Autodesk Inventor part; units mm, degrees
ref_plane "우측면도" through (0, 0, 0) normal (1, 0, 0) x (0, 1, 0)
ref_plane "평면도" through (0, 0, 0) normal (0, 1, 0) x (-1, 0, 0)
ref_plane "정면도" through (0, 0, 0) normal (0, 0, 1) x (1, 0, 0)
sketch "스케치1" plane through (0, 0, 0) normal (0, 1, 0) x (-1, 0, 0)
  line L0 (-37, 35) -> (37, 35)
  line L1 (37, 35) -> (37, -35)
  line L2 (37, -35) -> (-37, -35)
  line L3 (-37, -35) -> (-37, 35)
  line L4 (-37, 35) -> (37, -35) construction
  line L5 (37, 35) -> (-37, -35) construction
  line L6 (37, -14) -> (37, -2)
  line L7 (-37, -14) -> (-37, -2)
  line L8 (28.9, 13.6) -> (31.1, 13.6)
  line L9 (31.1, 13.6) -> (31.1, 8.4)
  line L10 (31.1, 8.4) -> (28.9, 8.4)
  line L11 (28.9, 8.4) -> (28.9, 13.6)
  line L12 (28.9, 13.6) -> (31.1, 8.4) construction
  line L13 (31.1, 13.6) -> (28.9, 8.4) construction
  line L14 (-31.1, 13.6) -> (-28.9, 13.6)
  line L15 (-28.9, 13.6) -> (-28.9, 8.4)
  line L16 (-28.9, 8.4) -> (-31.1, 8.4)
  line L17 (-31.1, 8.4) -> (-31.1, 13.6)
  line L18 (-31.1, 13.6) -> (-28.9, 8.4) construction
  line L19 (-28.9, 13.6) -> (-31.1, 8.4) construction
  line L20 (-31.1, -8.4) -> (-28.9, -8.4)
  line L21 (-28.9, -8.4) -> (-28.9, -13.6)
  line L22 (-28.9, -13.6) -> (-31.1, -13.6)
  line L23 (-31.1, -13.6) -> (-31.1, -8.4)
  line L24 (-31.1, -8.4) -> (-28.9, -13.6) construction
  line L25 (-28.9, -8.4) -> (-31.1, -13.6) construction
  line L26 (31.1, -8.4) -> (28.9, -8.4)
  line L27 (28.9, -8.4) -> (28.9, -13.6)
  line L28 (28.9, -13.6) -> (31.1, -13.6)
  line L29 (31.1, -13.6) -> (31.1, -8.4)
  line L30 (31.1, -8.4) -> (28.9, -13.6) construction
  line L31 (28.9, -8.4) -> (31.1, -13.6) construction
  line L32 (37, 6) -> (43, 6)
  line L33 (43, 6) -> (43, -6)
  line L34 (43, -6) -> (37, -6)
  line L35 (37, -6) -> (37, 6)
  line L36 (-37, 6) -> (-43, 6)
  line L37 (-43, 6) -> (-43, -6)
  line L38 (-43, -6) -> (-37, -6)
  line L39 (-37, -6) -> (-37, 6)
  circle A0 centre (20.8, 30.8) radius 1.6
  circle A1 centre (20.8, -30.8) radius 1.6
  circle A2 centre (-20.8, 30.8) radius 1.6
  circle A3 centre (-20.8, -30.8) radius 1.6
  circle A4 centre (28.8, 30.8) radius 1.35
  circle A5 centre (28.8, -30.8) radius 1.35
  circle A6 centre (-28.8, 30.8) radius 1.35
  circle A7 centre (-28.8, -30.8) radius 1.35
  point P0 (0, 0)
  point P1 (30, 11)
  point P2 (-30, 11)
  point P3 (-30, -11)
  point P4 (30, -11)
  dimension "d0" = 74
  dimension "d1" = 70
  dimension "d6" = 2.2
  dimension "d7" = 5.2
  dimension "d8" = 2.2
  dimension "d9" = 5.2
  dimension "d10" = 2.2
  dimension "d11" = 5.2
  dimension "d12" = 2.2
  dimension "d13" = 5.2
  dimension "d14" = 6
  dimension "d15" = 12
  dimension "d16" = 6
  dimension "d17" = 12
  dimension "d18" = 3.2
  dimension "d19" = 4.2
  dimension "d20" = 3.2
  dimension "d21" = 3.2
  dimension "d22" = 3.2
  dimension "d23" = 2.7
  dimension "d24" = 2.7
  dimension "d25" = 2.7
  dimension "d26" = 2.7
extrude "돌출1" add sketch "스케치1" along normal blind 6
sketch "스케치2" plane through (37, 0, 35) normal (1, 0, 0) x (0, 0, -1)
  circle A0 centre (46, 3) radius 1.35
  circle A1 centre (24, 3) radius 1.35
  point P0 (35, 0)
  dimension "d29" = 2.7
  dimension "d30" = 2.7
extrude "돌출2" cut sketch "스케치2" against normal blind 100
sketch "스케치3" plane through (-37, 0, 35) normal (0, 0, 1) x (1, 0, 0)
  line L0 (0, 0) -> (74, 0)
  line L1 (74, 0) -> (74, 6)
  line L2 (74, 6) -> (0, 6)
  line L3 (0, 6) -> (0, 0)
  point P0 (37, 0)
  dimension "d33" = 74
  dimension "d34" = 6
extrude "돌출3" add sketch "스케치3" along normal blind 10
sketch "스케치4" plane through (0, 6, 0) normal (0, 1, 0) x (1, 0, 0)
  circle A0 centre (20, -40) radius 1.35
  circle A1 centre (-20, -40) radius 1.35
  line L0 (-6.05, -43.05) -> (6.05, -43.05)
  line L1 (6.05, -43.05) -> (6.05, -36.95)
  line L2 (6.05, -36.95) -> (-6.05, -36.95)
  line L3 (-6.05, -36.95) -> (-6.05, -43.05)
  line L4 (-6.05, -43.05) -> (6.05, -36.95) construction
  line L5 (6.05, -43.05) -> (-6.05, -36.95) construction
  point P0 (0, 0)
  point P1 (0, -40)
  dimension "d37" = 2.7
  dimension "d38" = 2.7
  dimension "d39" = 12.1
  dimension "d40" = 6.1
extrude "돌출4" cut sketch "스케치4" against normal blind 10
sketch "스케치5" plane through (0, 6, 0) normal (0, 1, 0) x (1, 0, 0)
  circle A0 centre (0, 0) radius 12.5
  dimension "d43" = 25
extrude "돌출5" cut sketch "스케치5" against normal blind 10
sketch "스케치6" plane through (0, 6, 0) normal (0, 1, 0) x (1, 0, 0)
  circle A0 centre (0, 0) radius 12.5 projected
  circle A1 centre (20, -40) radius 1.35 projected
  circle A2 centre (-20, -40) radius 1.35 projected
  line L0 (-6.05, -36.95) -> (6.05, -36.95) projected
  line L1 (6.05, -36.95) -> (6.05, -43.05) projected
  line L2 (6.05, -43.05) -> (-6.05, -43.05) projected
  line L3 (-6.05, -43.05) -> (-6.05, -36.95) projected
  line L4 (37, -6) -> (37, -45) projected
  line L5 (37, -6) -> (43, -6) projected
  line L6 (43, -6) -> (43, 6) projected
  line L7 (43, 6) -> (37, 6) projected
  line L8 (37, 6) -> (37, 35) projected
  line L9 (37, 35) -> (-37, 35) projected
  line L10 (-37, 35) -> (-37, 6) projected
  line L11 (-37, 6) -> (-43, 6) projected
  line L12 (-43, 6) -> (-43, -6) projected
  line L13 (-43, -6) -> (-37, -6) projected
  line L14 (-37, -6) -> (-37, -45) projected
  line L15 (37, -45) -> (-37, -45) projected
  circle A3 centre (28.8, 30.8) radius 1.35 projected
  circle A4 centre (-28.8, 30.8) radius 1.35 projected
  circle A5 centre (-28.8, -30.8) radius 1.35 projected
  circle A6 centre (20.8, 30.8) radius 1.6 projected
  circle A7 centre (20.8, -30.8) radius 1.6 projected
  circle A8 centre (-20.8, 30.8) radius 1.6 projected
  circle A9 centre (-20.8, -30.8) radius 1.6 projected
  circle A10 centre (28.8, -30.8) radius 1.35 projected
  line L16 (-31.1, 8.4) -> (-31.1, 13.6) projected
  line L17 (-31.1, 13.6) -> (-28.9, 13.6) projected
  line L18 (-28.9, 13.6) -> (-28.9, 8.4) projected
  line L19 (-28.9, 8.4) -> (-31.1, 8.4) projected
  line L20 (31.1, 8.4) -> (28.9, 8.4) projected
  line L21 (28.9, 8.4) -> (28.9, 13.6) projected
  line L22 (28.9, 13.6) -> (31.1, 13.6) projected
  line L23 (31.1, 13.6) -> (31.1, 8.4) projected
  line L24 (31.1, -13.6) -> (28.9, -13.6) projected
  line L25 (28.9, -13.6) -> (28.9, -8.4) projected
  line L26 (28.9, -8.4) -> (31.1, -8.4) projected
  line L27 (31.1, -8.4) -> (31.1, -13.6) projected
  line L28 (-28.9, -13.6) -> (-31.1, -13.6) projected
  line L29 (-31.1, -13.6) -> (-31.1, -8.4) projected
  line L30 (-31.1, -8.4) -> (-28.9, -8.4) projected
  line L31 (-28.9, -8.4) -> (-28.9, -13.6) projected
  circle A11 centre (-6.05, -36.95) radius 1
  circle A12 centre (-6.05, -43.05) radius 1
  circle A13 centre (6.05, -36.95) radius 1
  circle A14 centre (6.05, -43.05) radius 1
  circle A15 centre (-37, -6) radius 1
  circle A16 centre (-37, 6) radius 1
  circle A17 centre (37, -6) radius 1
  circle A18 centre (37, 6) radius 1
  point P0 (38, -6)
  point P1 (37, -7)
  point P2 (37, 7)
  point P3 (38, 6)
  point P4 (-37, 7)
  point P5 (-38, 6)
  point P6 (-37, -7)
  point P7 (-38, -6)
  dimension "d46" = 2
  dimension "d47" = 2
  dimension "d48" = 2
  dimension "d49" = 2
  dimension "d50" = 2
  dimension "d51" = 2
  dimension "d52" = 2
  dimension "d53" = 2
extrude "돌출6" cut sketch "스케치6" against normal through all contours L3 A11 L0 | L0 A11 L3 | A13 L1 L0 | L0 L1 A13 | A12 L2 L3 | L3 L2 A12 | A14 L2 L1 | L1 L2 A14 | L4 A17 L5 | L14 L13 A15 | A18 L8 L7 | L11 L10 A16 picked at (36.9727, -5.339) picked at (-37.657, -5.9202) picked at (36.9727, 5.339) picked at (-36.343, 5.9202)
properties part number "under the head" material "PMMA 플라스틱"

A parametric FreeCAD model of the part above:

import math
import FreeCAD as App
import Part
import Sketcher
from FreeCAD import Vector
Q = App.Units.Quantity


def add_polygon(sketch, points):
    """Adds a closed chain of lines whose ends are joined by coincident constraints."""
    first, n = sketch.GeometryCount, len(points)
    for a, b in zip(points, points[1:] + points[:1]):
        sketch.addGeometry(Part.LineSegment(App.Vector(*a, 0), App.Vector(*b, 0)), False)
    for i in range(n):
        sketch.addConstraint(Sketcher.Constraint("Coincident", first + i, 2, first + (i + 1) % n, 1))

doc = App.newDocument("Part")
body = doc.addObject("PartDesign::Body", "Body")

# Sketch on XZ plane
sketch1 = doc.addObject("Sketcher::SketchObject", "Sketch")
body.addObject(sketch1)
sketch1.AttachmentSupport = (doc.XZ_Plane, [""])
sketch1.MapMode = "FlatFace"
add_polygon(sketch1, [(-37, 35), (37, 35), (37, 6), (43, 6), (43, -6), (37, -6), (37, -35), (-37, -35), (-37, -6), (-43, -6), (-43, 6), (-37, 6)])  # lines 0-11
sketch1.addGeometry(Part.Circle(Vector(28.8, -30.8, 0), Vector(0, 0, 1), 1.35), False)  # 12
sketch1.addGeometry(Part.Circle(Vector(20.8, -30.8, 0), Vector(0, 0, 1), 1.6), False)  # 13
add_polygon(sketch1, [(31.1, -13.6), (31.1, -8.4), (28.9, -8.4), (28.9, -13.6)])  # lines 14-17
sketch1.addGeometry(Part.Circle(Vector(-20.8, -30.8, 0), Vector(0, 0, 1), 1.6), False)  # 18
sketch1.addGeometry(Part.Circle(Vector(-28.8, -30.8, 0), Vector(0, 0, 1), 1.35), False)  # 19
add_polygon(sketch1, [(-28.9, -8.4), (-31.1, -8.4), (-31.1, -13.6), (-28.9, -13.6)])  # lines 20-23
add_polygon(sketch1, [(31.1, 8.4), (31.1, 13.6), (28.9, 13.6), (28.9, 8.4)])  # lines 24-27
sketch1.addGeometry(Part.Circle(Vector(28.8, 30.8, 0), Vector(0, 0, 1), 1.35), False)  # 28
sketch1.addGeometry(Part.Circle(Vector(20.8, 30.8, 0), Vector(0, 0, 1), 1.6), False)  # 29
add_polygon(sketch1, [(-28.9, 8.4), (-28.9, 13.6), (-31.1, 13.6), (-31.1, 8.4)])  # lines 30-33
sketch1.addGeometry(Part.Circle(Vector(-20.8, 30.8, 0), Vector(0, 0, 1), 1.6), False)  # 34
sketch1.addGeometry(Part.Circle(Vector(-28.8, 30.8, 0), Vector(0, 0, 1), 1.35), False)  # 35
sketch1.addConstraint(Sketcher.Constraint("Horizontal", 0))
sketch1.addConstraint(Sketcher.Constraint("Vertical", 1))
sketch1.addConstraint(Sketcher.Constraint("Horizontal", 2))
sketch1.addConstraint(Sketcher.Constraint("Vertical", 3))
sketch1.addConstraint(Sketcher.Constraint("Horizontal", 4))
sketch1.addConstraint(Sketcher.Constraint("Vertical", 5))
sketch1.addConstraint(Sketcher.Constraint("Horizontal", 6))
sketch1.addConstraint(Sketcher.Constraint("Vertical", 7))
sketch1.addConstraint(Sketcher.Constraint("Horizontal", 8))
sketch1.addConstraint(Sketcher.Constraint("Vertical", 9))
sketch1.addConstraint(Sketcher.Constraint("Horizontal", 10))
sketch1.addConstraint(Sketcher.Constraint("Vertical", 11))
sketch1.addConstraint(Sketcher.Constraint("Vertical", 14))
sketch1.addConstraint(Sketcher.Constraint("Horizontal", 15))
sketch1.addConstraint(Sketcher.Constraint("Vertical", 16))
sketch1.addConstraint(Sketcher.Constraint("Horizontal", 17))
sketch1.addConstraint(Sketcher.Constraint("Horizontal", 20))
sketch1.addConstraint(Sketcher.Constraint("Vertical", 21))
sketch1.addConstraint(Sketcher.Constraint("Horizontal", 22))
sketch1.addConstraint(Sketcher.Constraint("Vertical", 23))
sketch1.addConstraint(Sketcher.Constraint("Vertical", 24))
sketch1.addConstraint(Sketcher.Constraint("Horizontal", 25))
sketch1.addConstraint(Sketcher.Constraint("Vertical", 26))
sketch1.addConstraint(Sketcher.Constraint("Horizontal", 27))
sketch1.addConstraint(Sketcher.Constraint("Vertical", 30))
sketch1.addConstraint(Sketcher.Constraint("Horizontal", 31))
sketch1.addConstraint(Sketcher.Constraint("Vertical", 32))
sketch1.addConstraint(Sketcher.Constraint("Horizontal", 33))
sketch1.addConstraint(Sketcher.Constraint("Equal", 13, 18))
sketch1.addConstraint(Sketcher.Constraint("Equal", 12, 19))
sketch1.addConstraint(Sketcher.Constraint("Equal", 19, 28))
sketch1.addConstraint(Sketcher.Constraint("Equal", 18, 29))
sketch1.addConstraint(Sketcher.Constraint("Equal", 29, 34))
sketch1.addConstraint(Sketcher.Constraint("Equal", 28, 35))
sketch1.addConstraint(Sketcher.Constraint("Symmetric", 19, 3, 28, 3, -1, 1))
sketch1.addConstraint(Sketcher.Constraint("Symmetric", 18, 3, 29, 3, -1, 1))
sketch1.addConstraint(Sketcher.Constraint("Symmetric", 13, 3, 34, 3, -1, 1))
sketch1.addConstraint(Sketcher.Constraint("Symmetric", 12, 3, 35, 3, -1, 1))
sketch1.addConstraint(Sketcher.Constraint("Symmetric", 0, 2, 6, 2, -1, 1))
sketch1.addConstraint(Sketcher.Constraint("Symmetric", 2, 2, 8, 2, -1, 1))
sketch1.addConstraint(Sketcher.Constraint("Symmetric", 4, 2, 10, 2, -1, 1))
sketch1.addConstraint(Sketcher.Constraint("Symmetric", 21, 2, 24, 2, -1, 1))
sketch1.addConstraint(Sketcher.Constraint("Symmetric", 23, 2, 26, 2, -1, 1))
sketch1.addConstraint(Sketcher.Constraint("Symmetric", 16, 2, 30, 2, -1, 1))
sketch1.addConstraint(Sketcher.Constraint("Symmetric", 14, 2, 32, 2, -1, 1))
sketch1.addConstraint(Sketcher.Constraint("Symmetric", 13, 3, 18, 3, -2))
sketch1.addConstraint(Sketcher.Constraint("Symmetric", 12, 3, 19, 3, -2))
sketch1.addConstraint(Sketcher.Constraint("Symmetric", 4, 2, 7, 2, -2))
sketch1.addConstraint(Sketcher.Constraint("Symmetric", 14, 2, 20, 2, -2))
sketch1.addConstraint(Sketcher.Constraint("Symmetric", 16, 2, 22, 2, -2))
sketch1.addConstraint(Sketcher.Constraint("Horizontal", 12, 3, 13, 3))
sketch1.addConstraint(Sketcher.Constraint("Diameter", 12, Q("2.7 mm")))
sketch1.addConstraint(Sketcher.Constraint("Diameter", 13, Q("3.2 mm")))
sketch1.addConstraint(Sketcher.Constraint("DistanceX", 0, 1, 0, 2, Q("74 mm")))
sketch1.addConstraint(Sketcher.Constraint("DistanceX", 2, 1, 2, 2, Q("6 mm")))
sketch1.addConstraint(Sketcher.Constraint("DistanceY", 3, 2, 3, 1, Q("12 mm")))
sketch1.addConstraint(Sketcher.Constraint("DistanceX", 15, 2, 15, 1, Q("2.2 mm")))
sketch1.addConstraint(Sketcher.Constraint("DistanceY", 14, 1, 14, 2, Q("5.2 mm")))
sketch1.addConstraint(Sketcher.Constraint("DistanceY", 28, 3, 0, 2, Q("4.2 mm")))
sketch1.addConstraint(Sketcher.Constraint("DistanceY", 1, 2, 1, 1, Q("29 mm")))
sketch1.addConstraint(Sketcher.Constraint("DistanceX", 13, 3, 12, 3, Q("8 mm")))
sketch1.addConstraint(Sketcher.Constraint("DistanceX", -1, 1, 12, 3, Q("28.8 mm")))
sketch1.addConstraint(Sketcher.Constraint("DistanceX", -1, 1, 14, 2, Q("31.1 mm")))
sketch1.addConstraint(Sketcher.Constraint("DistanceY", 14, 2, -1, 1, Q("8.4 mm")))
pad1 = doc.addObject("PartDesign::Pad", "Pad")
body.addObject(pad1)
pad1.Profile = sketch1
pad1.Length = 6
pad1.Reversed = True

# Sketch on YZ plane
sketch2 = doc.addObject("Sketcher::SketchObject", "Sketch001")
body.addObject(sketch2)
sketch2.AttachmentSupport = (doc.YZ_Plane, [""])
sketch2.MapMode = "FlatFace"
sketch2.AttachmentOffset = App.Placement(Vector(0, 0, 37), App.Rotation())
sketch2.addGeometry(Part.Circle(Vector(3, -11, 0), Vector(0, 0, 1), 1.35), False)
sketch2.addGeometry(Part.Circle(Vector(3, 11, 0), Vector(0, 0, 1), 1.35), False)
sketch2.addConstraint(Sketcher.Constraint("Equal", 0, 1))
sketch2.addConstraint(Sketcher.Constraint("Symmetric", 0, 3, 1, 3, -1))
sketch2.addConstraint(Sketcher.Constraint("Diameter", 0, Q("2.7 mm")))
sketch2.addConstraint(Sketcher.Constraint("DistanceX", -1, 1, 0, 3, Q("3 mm")))
sketch2.addConstraint(Sketcher.Constraint("DistanceY", 0, 3, -1, 1, Q("11 mm")))
pocket1 = doc.addObject("PartDesign::Pocket", "Pocket")
body.addObject(pocket1)
pocket1.Profile = sketch2
pocket1.Length = 100

# Sketch on XY plane
sketch3 = doc.addObject("Sketcher::SketchObject", "Sketch002")
body.addObject(sketch3)
sketch3.AttachmentSupport = (doc.XY_Plane, [""])
sketch3.MapMode = "FlatFace"
sketch3.AttachmentOffset = App.Placement(Vector(0, 0, 35), App.Rotation())
add_polygon(sketch3, [(-37, 6), (-37, 0), (37, 0), (37, 6)])  # lines 0-3
sketch3.addConstraint(Sketcher.Constraint("Vertical", 0))
sketch3.addConstraint(Sketcher.Constraint("Horizontal", 1))
sketch3.addConstraint(Sketcher.Constraint("Vertical", 2))
sketch3.addConstraint(Sketcher.Constraint("Horizontal", 3))
sketch3.addConstraint(Sketcher.Constraint("Symmetric", 0, 2, 1, 2, -1, 1))
sketch3.addConstraint(Sketcher.Constraint("DistanceX", 1, 1, 1, 2, Q("74 mm")))
sketch3.addConstraint(Sketcher.Constraint("DistanceY", 0, 2, 0, 1, Q("6 mm")))
pad2 = doc.addObject("PartDesign::Pad", "Pad001")
body.addObject(pad2)
pad2.Profile = sketch3
pad2.Length = 10

# Sketch on XZ plane
sketch4 = doc.addObject("Sketcher::SketchObject", "Sketch003")
body.addObject(sketch4)
sketch4.AttachmentSupport = (doc.XZ_Plane, [""])
sketch4.MapMode = "FlatFace"
sketch4.AttachmentOffset = App.Placement(Vector(0, 0, -6), App.Rotation())
sketch4.addGeometry(Part.Circle(Vector(20, 40, 0), Vector(0, 0, 1), 1.35), False)  # 0
sketch4.addGeometry(Part.Circle(Vector(-20, 40, 0), Vector(0, 0, 1), 1.35), False)  # 1
add_polygon(sketch4, [(-6.05, 36.95), (-6.05, 43.05), (6.05, 43.05), (6.05, 36.95)])  # lines 2-5
sketch4.addConstraint(Sketcher.Constraint("Vertical", 2))
sketch4.addConstraint(Sketcher.Constraint("Horizontal", 3))
sketch4.addConstraint(Sketcher.Constraint("Vertical", 4))
sketch4.addConstraint(Sketcher.Constraint("Horizontal", 5))
sketch4.addConstraint(Sketcher.Constraint("Equal", 0, 1))
sketch4.addConstraint(Sketcher.Constraint("Symmetric", 0, 3, 1, 3, -2))
sketch4.addConstraint(Sketcher.Constraint("Diameter", 0, Q("2.7 mm")))
sketch4.addConstraint(Sketcher.Constraint("DistanceX", 3, 1, 3, 2, Q("12.1 mm")))
sketch4.addConstraint(Sketcher.Constraint("DistanceY", 2, 1, 2, 2, Q("6.1 mm")))
sketch4.addConstraint(Sketcher.Constraint("DistanceX", -1, 1, 0, 3, Q("20 mm")))
sketch4.addConstraint(Sketcher.Constraint("DistanceY", -1, 1, 0, 3, Q("40 mm")))
sketch4.addConstraint(Sketcher.Constraint("DistanceX", 2, 2, -1, 1, Q("6.05 mm")))
sketch4.addConstraint(Sketcher.Constraint("DistanceY", -1, 1, 2, 2, Q("43.05 mm")))
pocket2 = doc.addObject("PartDesign::Pocket", "Pocket001")
body.addObject(pocket2)
pocket2.Profile = sketch4
pocket2.Length = 10
pocket2.Reversed = True

# Sketch on XZ plane
sketch5 = doc.addObject("Sketcher::SketchObject", "Sketch004")
body.addObject(sketch5)
sketch5.AttachmentSupport = (doc.XZ_Plane, [""])
sketch5.MapMode = "FlatFace"
sketch5.AttachmentOffset = App.Placement(Vector(0, 0, -6), App.Rotation())
sketch5.addGeometry(Part.Circle(Vector(0, 0, 0), Vector(0, 0, 1), 12.5), False)
sketch5.addConstraint(Sketcher.Constraint("Coincident", 0, 3, -1, 1))
sketch5.addConstraint(Sketcher.Constraint("Diameter", 0, Q("25 mm")))
pocket3 = doc.addObject("PartDesign::Pocket", "Pocket002")
body.addObject(pocket3)
pocket3.Profile = sketch5
pocket3.Length = 10
pocket3.Reversed = True

# Sketch on XZ plane
sketch6 = doc.addObject("Sketcher::SketchObject", "Sketch005")
body.addObject(sketch6)
sketch6.AttachmentSupport = (doc.XZ_Plane, [""])
sketch6.MapMode = "FlatFace"
sketch6.AttachmentOffset = App.Placement(Vector(0, 0, -6), App.Rotation())
sketch6.addGeometry(Part.Circle(Vector(-6.05, 36.95, 0), Vector(0, 0, 1), 1), False)
sketch6.addGeometry(Part.Circle(Vector(6.05, 36.95, 0), Vector(0, 0, 1), 1), False)
sketch6.addGeometry(Part.Circle(Vector(-6.05, 43.05, 0), Vector(0, 0, 1), 1), False)
sketch6.addGeometry(Part.Circle(Vector(6.05, 43.05, 0), Vector(0, 0, 1), 1), False)
sketch6.addGeometry(Part.LineSegment(Vector(37, 7, 0), Vector(37, 6, 0)), False)
sketch6.addGeometry(Part.LineSegment(Vector(37, 6, 0), Vector(38, 6, 0)), False)
sketch6.addGeometry(Part.ArcOfCircle(Part.Circle(Vector(37, 6, 0), Vector(0, 0, 1), 1), math.radians(90), math.radians(360)), False)
sketch6.addGeometry(Part.LineSegment(Vector(-37, 6, 0), Vector(-37, 7, 0)), False)
sketch6.addGeometry(Part.ArcOfCircle(Part.Circle(Vector(-37, 6, 0), Vector(0, 0, 1), 1), math.radians(180), math.radians(450)), False)
sketch6.addGeometry(Part.LineSegment(Vector(-38, 6, 0), Vector(-37, 6, 0)), False)
sketch6.addGeometry(Part.ArcOfCircle(Part.Circle(Vector(37, -6, 0), Vector(0, 0, 1), 1), math.radians(0), math.radians(270)), False)
sketch6.addGeometry(Part.LineSegment(Vector(38, -6, 0), Vector(37, -6, 0)), False)
sketch6.addGeometry(Part.LineSegment(Vector(37, -6, 0), Vector(37, -7, 0)), False)
sketch6.addGeometry(Part.LineSegment(Vector(-37, -6, 0), Vector(-38, -6, 0)), False)
sketch6.addGeometry(Part.ArcOfCircle(Part.Circle(Vector(-37, -6, 0), Vector(0, 0, 1), 1), math.radians(-90), math.radians(180)), False)
sketch6.addGeometry(Part.LineSegment(Vector(-37, -7, 0), Vector(-37, -6, 0)), False)
sketch6.addConstraint(Sketcher.Constraint("Coincident", 4, 2, 5, 1))
sketch6.addConstraint(Sketcher.Constraint("Coincident", 5, 2, 6, 2))
sketch6.addConstraint(Sketcher.Constraint("Coincident", 6, 1, 4, 1))
sketch6.addConstraint(Sketcher.Constraint("Coincident", 7, 2, 8, 2))
sketch6.addConstraint(Sketcher.Constraint("Coincident", 8, 1, 9, 1))
sketch6.addConstraint(Sketcher.Constraint("Coincident", 9, 2, 7, 1))
sketch6.addConstraint(Sketcher.Constraint("Coincident", 10, 1, 11, 1))
sketch6.addConstraint(Sketcher.Constraint("Coincident", 11, 2, 12, 1))
sketch6.addConstraint(Sketcher.Constraint("Coincident", 12, 2, 10, 2))
sketch6.addConstraint(Sketcher.Constraint("Coincident", 13, 2, 14, 2))
sketch6.addConstraint(Sketcher.Constraint("Coincident", 14, 1, 15, 1))
sketch6.addConstraint(Sketcher.Constraint("Coincident", 15, 2, 13, 1))
sketch6.addConstraint(Sketcher.Constraint("Vertical", 4))
sketch6.addConstraint(Sketcher.Constraint("Horizontal", 5))
sketch6.addConstraint(Sketcher.Constraint("Vertical", 7))
sketch6.addConstraint(Sketcher.Constraint("Horizontal", 9))
sketch6.addConstraint(Sketcher.Constraint("Horizontal", 11))
sketch6.addConstraint(Sketcher.Constraint("Vertical", 12))
sketch6.addConstraint(Sketcher.Constraint("Horizontal", 13))
sketch6.addConstraint(Sketcher.Constraint("Vertical", 15))
sketch6.addConstraint(Sketcher.Constraint("Coincident", 4, 2, 6, 3))
sketch6.addConstraint(Sketcher.Constraint("Coincident", 9, 2, 8, 3))
sketch6.addConstraint(Sketcher.Constraint("Coincident", 11, 2, 10, 3))
sketch6.addConstraint(Sketcher.Constraint("Coincident", 15, 2, 14, 3))
sketch6.addConstraint(Sketcher.Constraint("Equal", 0, 1))
sketch6.addConstraint(Sketcher.Constraint("Equal", 1, 2))
sketch6.addConstraint(Sketcher.Constraint("Equal", 2, 3))
sketch6.addConstraint(Sketcher.Constraint("Equal", 3, 6))
sketch6.addConstraint(Sketcher.Constraint("Equal", 6, 8))
sketch6.addConstraint(Sketcher.Constraint("Equal", 8, 10))
sketch6.addConstraint(Sketcher.Constraint("Equal", 10, 14))
sketch6.addConstraint(Sketcher.Constraint("Symmetric", 8, 3, 10, 3, -1, 1))
sketch6.addConstraint(Sketcher.Constraint("Symmetric", 6, 3, 14, 3, -1, 1))
sketch6.addConstraint(Sketcher.Constraint("Symmetric", 0, 3, 1, 3, -2))
sketch6.addConstraint(Sketcher.Constraint("Symmetric", 2, 3, 3, 3, -2))
sketch6.addConstraint(Sketcher.Constraint("Symmetric", 6, 3, 8, 3, -2))
sketch6.addConstraint(Sketcher.Constraint("Vertical", 0, 3, 2, 3))
sketch6.addConstraint(Sketcher.Constraint("Diameter", 0, Q("2 mm")))
sketch6.addConstraint(Sketcher.Constraint("DistanceX", -1, 1, 6, 3, Q("37 mm")))
sketch6.addConstraint(Sketcher.Constraint("DistanceY", -1, 1, 6, 3, Q("6 mm")))
sketch6.addConstraint(Sketcher.Constraint("DistanceX", 0, 3, 1, 3, Q("12.1 mm")))
sketch6.addConstraint(Sketcher.Constraint("DistanceY", 0, 3, 2, 3, Q("6.1 mm")))
sketch6.addConstraint(Sketcher.Constraint("DistanceY", -1, 1, 0, 3, Q("36.95 mm")))
pocket4 = doc.addObject("PartDesign::Pocket", "Pocket003")
body.addObject(pocket4)
pocket4.Profile = sketch6
pocket4.Type = "ThroughAll"
pocket4.Reversed = True

doc.recompute()
